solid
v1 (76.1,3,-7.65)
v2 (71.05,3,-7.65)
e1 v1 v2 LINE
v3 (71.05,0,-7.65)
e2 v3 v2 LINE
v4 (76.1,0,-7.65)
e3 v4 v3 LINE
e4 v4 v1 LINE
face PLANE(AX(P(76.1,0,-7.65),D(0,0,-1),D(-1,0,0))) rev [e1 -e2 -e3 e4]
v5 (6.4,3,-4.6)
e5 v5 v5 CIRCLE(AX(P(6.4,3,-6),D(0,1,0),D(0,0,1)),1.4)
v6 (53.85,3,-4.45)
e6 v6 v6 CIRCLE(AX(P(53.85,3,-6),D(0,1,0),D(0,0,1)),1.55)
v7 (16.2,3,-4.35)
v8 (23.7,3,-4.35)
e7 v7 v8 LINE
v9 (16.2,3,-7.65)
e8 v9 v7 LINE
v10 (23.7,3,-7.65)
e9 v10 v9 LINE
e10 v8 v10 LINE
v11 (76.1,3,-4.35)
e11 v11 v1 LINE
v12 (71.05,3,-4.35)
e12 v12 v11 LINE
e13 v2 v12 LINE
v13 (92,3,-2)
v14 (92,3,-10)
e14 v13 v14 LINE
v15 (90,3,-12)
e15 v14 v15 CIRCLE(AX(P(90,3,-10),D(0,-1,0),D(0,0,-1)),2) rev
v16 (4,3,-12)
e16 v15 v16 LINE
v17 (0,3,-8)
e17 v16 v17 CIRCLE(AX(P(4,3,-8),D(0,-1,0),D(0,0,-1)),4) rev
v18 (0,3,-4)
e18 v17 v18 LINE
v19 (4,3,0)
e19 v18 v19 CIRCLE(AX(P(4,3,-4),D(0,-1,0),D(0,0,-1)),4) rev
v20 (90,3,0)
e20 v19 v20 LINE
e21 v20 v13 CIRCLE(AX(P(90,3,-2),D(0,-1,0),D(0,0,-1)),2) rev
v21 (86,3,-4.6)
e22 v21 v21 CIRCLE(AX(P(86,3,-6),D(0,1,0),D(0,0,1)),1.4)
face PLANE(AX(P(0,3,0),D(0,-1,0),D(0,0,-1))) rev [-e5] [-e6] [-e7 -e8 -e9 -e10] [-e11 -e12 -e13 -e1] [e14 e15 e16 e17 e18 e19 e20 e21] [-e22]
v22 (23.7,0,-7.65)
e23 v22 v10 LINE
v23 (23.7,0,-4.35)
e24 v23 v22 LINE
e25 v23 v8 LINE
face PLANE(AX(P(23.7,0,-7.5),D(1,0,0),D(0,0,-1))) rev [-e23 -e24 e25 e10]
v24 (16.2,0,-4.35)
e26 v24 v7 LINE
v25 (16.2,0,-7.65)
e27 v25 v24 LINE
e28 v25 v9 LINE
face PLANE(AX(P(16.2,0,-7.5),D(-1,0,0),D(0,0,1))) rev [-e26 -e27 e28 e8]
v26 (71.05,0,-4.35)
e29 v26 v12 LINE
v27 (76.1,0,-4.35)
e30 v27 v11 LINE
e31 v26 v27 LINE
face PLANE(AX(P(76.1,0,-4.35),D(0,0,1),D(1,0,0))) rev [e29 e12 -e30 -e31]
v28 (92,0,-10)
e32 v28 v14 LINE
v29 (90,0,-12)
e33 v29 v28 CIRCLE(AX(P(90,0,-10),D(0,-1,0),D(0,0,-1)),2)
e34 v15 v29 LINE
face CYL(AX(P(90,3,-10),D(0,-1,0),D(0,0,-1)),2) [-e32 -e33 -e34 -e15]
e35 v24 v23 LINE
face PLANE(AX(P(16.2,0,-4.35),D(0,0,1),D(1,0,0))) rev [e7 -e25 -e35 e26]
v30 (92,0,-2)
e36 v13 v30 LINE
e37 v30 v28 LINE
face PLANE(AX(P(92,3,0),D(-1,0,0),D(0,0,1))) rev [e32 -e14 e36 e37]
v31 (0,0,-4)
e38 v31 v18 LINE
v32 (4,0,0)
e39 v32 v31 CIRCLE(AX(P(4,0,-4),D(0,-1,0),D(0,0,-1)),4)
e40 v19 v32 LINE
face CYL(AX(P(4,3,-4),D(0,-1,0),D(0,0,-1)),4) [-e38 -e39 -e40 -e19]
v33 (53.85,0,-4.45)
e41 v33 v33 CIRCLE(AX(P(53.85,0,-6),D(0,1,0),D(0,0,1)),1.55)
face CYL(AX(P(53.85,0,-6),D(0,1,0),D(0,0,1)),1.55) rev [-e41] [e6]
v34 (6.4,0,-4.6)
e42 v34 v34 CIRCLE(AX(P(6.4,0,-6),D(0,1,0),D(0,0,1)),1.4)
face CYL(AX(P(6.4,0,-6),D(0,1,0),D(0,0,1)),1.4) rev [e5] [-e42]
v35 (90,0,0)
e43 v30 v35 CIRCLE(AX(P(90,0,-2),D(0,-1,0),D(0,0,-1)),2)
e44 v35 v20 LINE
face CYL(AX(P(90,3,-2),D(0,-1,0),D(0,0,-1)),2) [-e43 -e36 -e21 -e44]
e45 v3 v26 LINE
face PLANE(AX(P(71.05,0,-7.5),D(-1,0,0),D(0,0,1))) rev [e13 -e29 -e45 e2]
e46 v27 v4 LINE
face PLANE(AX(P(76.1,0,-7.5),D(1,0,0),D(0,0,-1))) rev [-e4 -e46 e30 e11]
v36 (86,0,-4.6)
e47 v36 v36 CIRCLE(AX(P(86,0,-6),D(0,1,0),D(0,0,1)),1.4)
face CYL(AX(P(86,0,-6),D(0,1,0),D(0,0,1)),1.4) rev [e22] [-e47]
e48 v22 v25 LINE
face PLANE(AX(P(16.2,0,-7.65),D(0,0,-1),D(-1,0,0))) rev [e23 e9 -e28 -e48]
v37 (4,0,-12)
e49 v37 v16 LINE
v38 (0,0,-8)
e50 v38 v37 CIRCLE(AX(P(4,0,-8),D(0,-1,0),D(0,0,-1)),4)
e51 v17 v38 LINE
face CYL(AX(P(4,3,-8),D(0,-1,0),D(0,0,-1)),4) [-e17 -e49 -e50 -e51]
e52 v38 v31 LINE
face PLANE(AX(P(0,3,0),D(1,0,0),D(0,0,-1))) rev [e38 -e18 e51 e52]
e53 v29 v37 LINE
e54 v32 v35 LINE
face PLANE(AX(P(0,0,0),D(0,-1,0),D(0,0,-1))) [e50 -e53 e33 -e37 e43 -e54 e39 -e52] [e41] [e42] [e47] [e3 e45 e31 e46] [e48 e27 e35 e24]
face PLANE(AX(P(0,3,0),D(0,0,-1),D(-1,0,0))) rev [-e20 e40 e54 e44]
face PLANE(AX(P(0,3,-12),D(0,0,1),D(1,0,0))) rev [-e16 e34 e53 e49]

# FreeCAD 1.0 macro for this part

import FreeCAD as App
import Part
import Sketcher
from FreeCAD import Vector


def edges_at(feature, points):
    """Names of the edges that pass closest to the given points."""
    edges = feature.Shape.Edges
    near = lambda p: min(range(len(edges)), key=lambda i: edges[i].distToShape(Part.Vertex(*p))[0])
    return sorted({f"Edge{near(p) + 1}" for p in points})

doc = App.newDocument("Part")
body = doc.addObject("PartDesign::Body", "Body")

# Sketch on XZ plane
sketch1 = body.newObject("Sketcher::SketchObject", "Sketch")
sketch1.AttachmentSupport = (doc.getObject("XZ_Plane"), [""])
sketch1.MapMode = "FlatFace"
sketch1.addGeometry([
    Part.LineSegment(Vector(0, -12, 0), Vector(0, 0, 0)),
    Part.LineSegment(Vector(0, 0, 0), Vector(92, 0, 0)),
    Part.LineSegment(Vector(92, 0, 0), Vector(92, -12, 0)),
    Part.LineSegment(Vector(92, -12, 0), Vector(0, -12, 0)),
], False)
sketch1.addConstraint([
    Sketcher.Constraint("Coincident", 0, 2, 1, 1),
    Sketcher.Constraint("Coincident", 1, 2, 2, 1),
    Sketcher.Constraint("Coincident", 2, 2, 3, 1),
    Sketcher.Constraint("Coincident", 3, 2, 0, 1),
    Sketcher.Constraint("Vertical", 0),
    Sketcher.Constraint("Horizontal", 1),
    Sketcher.Constraint("Vertical", 2),
    Sketcher.Constraint("Horizontal", 3),
    Sketcher.Constraint("Coincident", 0, 2, -1, 1),
    Sketcher.Constraint("DistanceX", 1, 1, 1, 2, 92.0),
    Sketcher.Constraint("DistanceY", 0, 1, 0, 2, 12.0),
])
pad1 = body.newObject("PartDesign::Pad", "Pad")
pad1.Profile = sketch1
pad1.Length = 3
pad1.Reversed = True
doc.recompute()

fillet = body.newObject("PartDesign::Fillet", "Fillet")
fillet.Base = (pad1, edges_at(pad1, [(0, 1.5, -12), (0, 1.5, 0)]))
fillet.Radius = 4
doc.recompute()

fillet2 = body.newObject("PartDesign::Fillet", "Fillet001")
fillet2.Base = (fillet, edges_at(fillet, [(92, 1.5, -12), (92, 1.5, 0)]))
fillet2.Radius = 2

# Sketch on XZ plane
sketch2 = body.newObject("Sketcher::SketchObject", "Sketch001")
sketch2.AttachmentSupport = (doc.getObject("XZ_Plane"), [""])
sketch2.MapMode = "FlatFace"
sketch2.AttachmentOffset = App.Placement(Vector(0, 0, -3), App.Rotation())
sketch2.addGeometry([
    Part.Circle(Vector(6.4, -6, 0), Vector(0, 0, 1), 1.4),  # 0
    Part.Circle(Vector(53.9, -6, 0), Vector(0, 0, 1), 1.6),  # 1
    Part.Circle(Vector(86, -6, 0), Vector(0, 0, 1), 1.4),  # 2
    Part.LineSegment(Vector(16.2, -7.5, 0), Vector(16.2, -4.5, 0)),  # 3
    Part.LineSegment(Vector(16.2, -4.5, 0), Vector(23.7, -4.5, 0)),  # 4
    Part.LineSegment(Vector(23.7, -4.5, 0), Vector(23.7, -7.5, 0)),  # 5
    Part.LineSegment(Vector(23.7, -7.5, 0), Vector(16.2, -7.5, 0)),  # 6
    Part.LineSegment(Vector(71, -7.5, 0), Vector(71, -4.5, 0)),  # 7
    Part.LineSegment(Vector(71, -4.5, 0), Vector(76.1, -4.5, 0)),  # 8
    Part.LineSegment(Vector(76.1, -4.5, 0), Vector(76.1, -7.5, 0)),  # 9
    Part.LineSegment(Vector(76.1, -7.5, 0), Vector(71, -7.5, 0)),  # 10
], False)
sketch2.addConstraint([
    Sketcher.Constraint("Coincident", 3, 2, 4, 1),
    Sketcher.Constraint("Coincident", 4, 2, 5, 1),
    Sketcher.Constraint("Coincident", 5, 2, 6, 1),
    Sketcher.Constraint("Coincident", 6, 2, 3, 1),
    Sketcher.Constraint("Coincident", 7, 2, 8, 1),
    Sketcher.Constraint("Coincident", 8, 2, 9, 1),
    Sketcher.Constraint("Coincident", 9, 2, 10, 1),
    Sketcher.Constraint("Coincident", 10, 2, 7, 1),
    Sketcher.Constraint("Vertical", 3),
    Sketcher.Constraint("Horizontal", 4),
    Sketcher.Constraint("Vertical", 5),
    Sketcher.Constraint("Horizontal", 6),
    Sketcher.Constraint("Vertical", 7),
    Sketcher.Constraint("Horizontal", 8),
    Sketcher.Constraint("Vertical", 9),
    Sketcher.Constraint("Horizontal", 10),
    Sketcher.Constraint("Equal", 0, 2),
    Sketcher.Constraint("Horizontal", 0, 3, 1, 3),
    Sketcher.Constraint("Horizontal", 1, 3, 2, 3),
    Sketcher.Constraint("Horizontal", 4, 2, 7, 2),
    Sketcher.Constraint("Horizontal", 6, 2, 9, 2),
    Sketcher.Constraint("Diameter", 0, 2.8),
    Sketcher.Constraint("Diameter", 1, 3.1),
    Sketcher.Constraint("DistanceY", 3, 1, 3, 2, 3.0),
    Sketcher.Constraint("DistanceX", 4, 1, 4, 2, 7.5),
    Sketcher.Constraint("DistanceY", 0, 3, -1, 1, 6.0),
    Sketcher.Constraint("DistanceX", -1, 1, 2, 3, 86.0),
    Sketcher.Constraint("DistanceX", 8, 1, 8, 2, 5.05),
    Sketcher.Constraint("DistanceX", -1, 1, 0, 3, 6.4),
    Sketcher.Constraint("DistanceX", -1, 1, 3, 2, 16.2),
    Sketcher.Constraint("DistanceY", 3, 2, -1, 1, 4.5),
    Sketcher.Constraint("DistanceX", -1, 1, 8, 2, 76.1),
    Sketcher.Constraint("DistanceX", 1, 3, 7, 2, 17.2),
])
pocket1 = body.newObject("PartDesign::Pocket", "Pocket")
pocket1.Profile = sketch2
pocket1.Type = "ThroughAll"
pocket1.Reversed = True

# Sketch on XZ plane
sketch3 = body.newObject("Sketcher::SketchObject", "Sketch002")
sketch3.AttachmentSupport = (doc.getObject("XZ_Plane"), [""])
sketch3.MapMode = "FlatFace"
sketch3.AttachmentOffset = App.Placement(Vector(0, 0, -3), App.Rotation())
sketch3.addGeometry([
    Part.LineSegment(Vector(16.2, -7.65, 0), Vector(16.2, -7.5, 0)),  # 0
    Part.LineSegment(Vector(16.2, -7.5, 0), Vector(23.7, -7.5, 0)),  # 1
    Part.LineSegment(Vector(23.7, -7.5, 0), Vector(23.7, -7.65, 0)),  # 2
    Part.LineSegment(Vector(23.7, -7.65, 0), Vector(16.2, -7.65, 0)),  # 3
    Part.LineSegment(Vector(16.2, -4.5, 0), Vector(16.2, -4.35, 0)),  # 4
    Part.LineSegment(Vector(16.2, -4.35, 0), Vector(23.7, -4.35, 0)),  # 5
    Part.LineSegment(Vector(23.7, -4.35, 0), Vector(23.7, -4.5, 0)),  # 6
    Part.LineSegment(Vector(23.7, -4.5, 0), Vector(16.2, -4.5, 0)),  # 7
    Part.LineSegment(Vector(71.05, -7.65, 0), Vector(71.05, -7.5, 0)),  # 8
    Part.LineSegment(Vector(71.05, -7.5, 0), Vector(76.1, -7.5, 0)),  # 9
    Part.LineSegment(Vector(76.1, -7.5, 0), Vector(76.1, -7.65, 0)),  # 10
    Part.LineSegment(Vector(76.1, -7.65, 0), Vector(71.05, -7.65, 0)),  # 11
    Part.LineSegment(Vector(71.05, -4.5, 0), Vector(71.05, -4.35, 0)),  # 12
    Part.LineSegment(Vector(71.05, -4.35, 0), Vector(76.1, -4.35, 0)),  # 13
    Part.LineSegment(Vector(76.1, -4.35, 0), Vector(76.1, -4.5, 0)),  # 14
    Part.LineSegment(Vector(76.1, -4.5, 0), Vector(71.05, -4.5, 0)),  # 15
], False)
sketch3.addConstraint([
    Sketcher.Constraint("Coincident", 0, 2, 1, 1),
    Sketcher.Constraint("Coincident", 1, 2, 2, 1),
    Sketcher.Constraint("Coincident", 2, 2, 3, 1),
    Sketcher.Constraint("Coincident", 3, 2, 0, 1),
    Sketcher.Constraint("Coincident", 4, 2, 5, 1),
    Sketcher.Constraint("Coincident", 5, 2, 6, 1),
    Sketcher.Constraint("Coincident", 6, 2, 7, 1),
    Sketcher.Constraint("Coincident", 7, 2, 4, 1),
    Sketcher.Constraint("Coincident", 8, 2, 9, 1),
    Sketcher.Constraint("Coincident", 9, 2, 10, 1),
    Sketcher.Constraint("Coincident", 10, 2, 11, 1),
    Sketcher.Constraint("Coincident", 11, 2, 8, 1),
    Sketcher.Constraint("Coincident", 12, 2, 13, 1),
    Sketcher.Constraint("Coincident", 13, 2, 14, 1),
    Sketcher.Constraint("Coincident", 14, 2, 15, 1),
    Sketcher.Constraint("Coincident", 15, 2, 12, 1),
    Sketcher.Constraint("Vertical", 0),
    Sketcher.Constraint("Horizontal", 1),
    Sketcher.Constraint("Vertical", 2),
    Sketcher.Constraint("Horizontal", 3),
    Sketcher.Constraint("Vertical", 4),
    Sketcher.Constraint("Horizontal", 5),
    Sketcher.Constraint("Vertical", 6),
    Sketcher.Constraint("Horizontal", 7),
    Sketcher.Constraint("Vertical", 8),
    Sketcher.Constraint("Horizontal", 9),
    Sketcher.Constraint("Vertical", 10),
    Sketcher.Constraint("Horizontal", 11),
    Sketcher.Constraint("Vertical", 12),
    Sketcher.Constraint("Horizontal", 13),
    Sketcher.Constraint("Vertical", 14),
    Sketcher.Constraint("Horizontal", 15),
    Sketcher.Constraint("Horizontal", 1, 2, 8, 2),
    Sketcher.Constraint("Horizontal", 3, 2, 10, 2),
    Sketcher.Constraint("Horizontal", 5, 2, 12, 2),
    Sketcher.Constraint("Horizontal", 7, 2, 14, 2),
    Sketcher.Constraint("Vertical", 3, 2, 4, 2),
    Sketcher.Constraint("Vertical", 2, 2, 5, 2),
    Sketcher.Constraint("Vertical", 11, 2, 12, 2),
    Sketcher.Constraint("Vertical", 10, 2, 13, 2),
    Sketcher.Constraint("Equal", 2, 4),
    Sketcher.Constraint("DistanceX", 1, 1, 1, 2, 7.5),
    Sketcher.Constraint("DistanceY", 1, 2, 6, 2, 3.0),
    Sketcher.Constraint("DistanceX", 9, 1, 9, 2, 5.05),
    Sketcher.Constraint("DistanceY", 0, 1, 0, 2, 0.15),
    Sketcher.Constraint("DistanceX", -1, 1, 0, 2, 16.2),
    Sketcher.Constraint("DistanceY", 0, 2, -1, 1, 7.5),
    Sketcher.Constraint("DistanceX", -1, 1, 9, 2, 76.1),
])
pocket2 = body.newObject("PartDesign::Pocket", "Pocket001")
pocket2.Profile = sketch3
pocket2.Type = "ThroughAll"
pocket2.Reversed = True

doc.recompute()
